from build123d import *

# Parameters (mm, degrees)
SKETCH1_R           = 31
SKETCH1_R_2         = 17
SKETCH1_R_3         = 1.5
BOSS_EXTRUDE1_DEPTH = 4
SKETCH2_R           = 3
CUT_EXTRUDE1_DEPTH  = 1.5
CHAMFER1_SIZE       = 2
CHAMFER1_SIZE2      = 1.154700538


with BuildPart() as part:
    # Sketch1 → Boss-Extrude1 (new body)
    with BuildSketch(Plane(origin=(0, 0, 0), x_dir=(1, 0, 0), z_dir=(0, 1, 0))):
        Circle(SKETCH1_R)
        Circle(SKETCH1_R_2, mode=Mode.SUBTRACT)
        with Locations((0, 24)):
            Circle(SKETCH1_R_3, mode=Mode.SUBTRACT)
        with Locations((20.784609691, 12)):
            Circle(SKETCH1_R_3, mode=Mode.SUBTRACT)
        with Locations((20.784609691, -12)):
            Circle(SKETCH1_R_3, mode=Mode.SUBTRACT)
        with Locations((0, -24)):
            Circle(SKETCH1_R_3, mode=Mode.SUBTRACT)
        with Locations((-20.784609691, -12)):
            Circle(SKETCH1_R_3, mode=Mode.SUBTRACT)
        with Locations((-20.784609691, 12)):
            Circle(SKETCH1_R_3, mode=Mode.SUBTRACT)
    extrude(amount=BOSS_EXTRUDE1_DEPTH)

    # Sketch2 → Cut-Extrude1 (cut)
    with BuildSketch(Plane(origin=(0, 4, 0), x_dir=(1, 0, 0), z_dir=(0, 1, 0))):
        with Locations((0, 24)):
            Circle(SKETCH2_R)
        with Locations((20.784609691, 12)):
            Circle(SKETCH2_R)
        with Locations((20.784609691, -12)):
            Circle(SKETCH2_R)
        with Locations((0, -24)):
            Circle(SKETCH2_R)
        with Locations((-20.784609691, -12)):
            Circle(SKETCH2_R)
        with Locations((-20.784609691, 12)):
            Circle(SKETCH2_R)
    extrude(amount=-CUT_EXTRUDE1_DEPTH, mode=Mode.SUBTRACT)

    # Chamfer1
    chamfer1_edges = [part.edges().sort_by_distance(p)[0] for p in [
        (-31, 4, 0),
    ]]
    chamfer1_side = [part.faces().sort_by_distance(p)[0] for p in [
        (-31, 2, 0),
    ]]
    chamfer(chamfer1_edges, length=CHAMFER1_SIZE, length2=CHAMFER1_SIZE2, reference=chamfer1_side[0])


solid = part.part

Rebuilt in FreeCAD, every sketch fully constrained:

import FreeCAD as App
import Part
import Sketcher

V = App.Vector


def edges_at(feature, points):
    """Names of the edges that pass closest to the given points."""
    edges = feature.Shape.Edges
    near = lambda p: min(range(len(edges)), key=lambda i: edges[i].distToShape(Part.Vertex(*p))[0])
    return sorted({f"Edge{near(p) + 1}" for p in points})

doc = App.newDocument("Part")
body = doc.addObject("PartDesign::Body", "Body")

sketch1 = body.newObject("Sketcher::SketchObject", "Sketch")
sketch1.AttachmentSupport = (doc.getObject("XZ_Plane"), [""])
sketch1.MapMode = "FlatFace"
sketch1.addGeometry(Part.Circle(V(0, 0, 0), V(0, 0, 1), 31), False)
sketch1.addGeometry(Part.Circle(V(-20.8, 12, 0), V(0, 0, 1), 1.5), False)
sketch1.addGeometry(Part.Circle(V(0, 24, 0), V(0, 0, 1), 1.5), False)
sketch1.addGeometry(Part.Circle(V(20.8, 12, 0), V(0, 0, 1), 1.5), False)
sketch1.addGeometry(Part.Circle(V(-20.8, -12, 0), V(0, 0, 1), 1.5), False)
sketch1.addGeometry(Part.Circle(V(0, 0, 0), V(0, 0, 1), 17), False)
sketch1.addGeometry(Part.Circle(V(20.8, -12, 0), V(0, 0, 1), 1.5), False)
sketch1.addGeometry(Part.Circle(V(0, -24, 0), V(0, 0, 1), 1.5), False)
sketch1.addConstraint(Sketcher.Constraint("Coincident", 0, 3, -1, 1))
sketch1.addConstraint(Sketcher.Constraint("Coincident", 5, 3, -1, 1))
sketch1.addConstraint(Sketcher.Constraint("Equal", 1, 2))
sketch1.addConstraint(Sketcher.Constraint("Equal", 2, 3))
sketch1.addConstraint(Sketcher.Constraint("Equal", 3, 4))
sketch1.addConstraint(Sketcher.Constraint("Equal", 4, 6))
sketch1.addConstraint(Sketcher.Constraint("Equal", 6, 7))
sketch1.addConstraint(Sketcher.Constraint("Symmetric", 3, 3, 4, 3, -1, 1))
sketch1.addConstraint(Sketcher.Constraint("Symmetric", 1, 3, 6, 3, -1, 1))
sketch1.addConstraint(Sketcher.Constraint("Symmetric", 2, 3, 7, 3, -1, 1))
sketch1.addConstraint(Sketcher.Constraint("Symmetric", 1, 3, 3, 3, -2))
sketch1.addConstraint(Sketcher.Constraint("PointOnObject", 2, 3, -2))
sketch1.addConstraint(Sketcher.Constraint("Diameter", 0, 62.0))
sketch1.addConstraint(Sketcher.Constraint("Diameter", 1, 3.0))
sketch1.addConstraint(Sketcher.Constraint("Diameter", 5, 34.0))
sketch1.addConstraint(Sketcher.Constraint("DistanceY", -1, 1, 1, 3, 12.0))
sketch1.addConstraint(Sketcher.Constraint("DistanceY", -1, 1, 2, 3, 24.0))
sketch1.addConstraint(Sketcher.Constraint("DistanceX", 1, 3, -1, 1, 20.78461))
pad1 = body.newObject("PartDesign::Pad", "Pad")
pad1.Profile = sketch1
pad1.Length = 4
pad1.Reversed = True

sketch2 = body.newObject("Sketcher::SketchObject", "Sketch001")
sketch2.AttachmentSupport = (doc.getObject("XZ_Plane"), [""])
sketch2.MapMode = "FlatFace"
sketch2.AttachmentOffset = App.Placement(V(0, 0, -4), App.Rotation())
sketch2.addGeometry(Part.Circle(V(0, -24, 0), V(0, 0, 1), 3), False)
sketch2.addGeometry(Part.Circle(V(20.8, -12, 0), V(0, 0, 1), 3), False)
sketch2.addGeometry(Part.Circle(V(20.8, 12, 0), V(0, 0, 1), 3), False)
sketch2.addGeometry(Part.Circle(V(0, 24, 0), V(0, 0, 1), 3), False)
sketch2.addGeometry(Part.Circle(V(-20.8, 12, 0), V(0, 0, 1), 3), False)
sketch2.addGeometry(Part.Circle(V(-20.8, -12, 0), V(0, 0, 1), 3), False)
sketch2.addConstraint(Sketcher.Constraint("Equal", 0, 1))
sketch2.addConstraint(Sketcher.Constraint("Equal", 1, 2))
sketch2.addConstraint(Sketcher.Constraint("Equal", 2, 3))
sketch2.addConstraint(Sketcher.Constraint("Equal", 3, 4))
sketch2.addConstraint(Sketcher.Constraint("Equal", 4, 5))
sketch2.addConstraint(Sketcher.Constraint("Symmetric", 0, 3, 3, 3, -1, 1))
sketch2.addConstraint(Sketcher.Constraint("Symmetric", 1, 3, 4, 3, -1, 1))
sketch2.addConstraint(Sketcher.Constraint("Symmetric", 2, 3, 5, 3, -1, 1))
sketch2.addConstraint(Sketcher.Constraint("Symmetric", 2, 3, 4, 3, -2))
sketch2.addConstraint(Sketcher.Constraint("PointOnObject", 0, 3, -2))
sketch2.addConstraint(Sketcher.Constraint("Diameter", 0, 6.0))
sketch2.addConstraint(Sketcher.Constraint("DistanceY", 0, 3, -1, 1, 24.0))
sketch2.addConstraint(Sketcher.Constraint("DistanceY", 1, 3, -1, 1, 12.0))
sketch2.addConstraint(Sketcher.Constraint("DistanceX", -1, 1, 1, 3, 20.78461))
pocket1 = body.newObject("PartDesign::Pocket", "Pocket")
pocket1.Profile = sketch2
pocket1.Length = 1.5
pocket1.Reversed = True
doc.recompute()

chamfer = body.newObject("PartDesign::Chamfer", "Chamfer")
chamfer.Base = (pocket1, edges_at(pocket1, [(-31, 4, 0)]))
chamfer.ChamferType = "Two distances"
chamfer.Size = 2
chamfer.Size2 = 1.154701

doc.recompute()
